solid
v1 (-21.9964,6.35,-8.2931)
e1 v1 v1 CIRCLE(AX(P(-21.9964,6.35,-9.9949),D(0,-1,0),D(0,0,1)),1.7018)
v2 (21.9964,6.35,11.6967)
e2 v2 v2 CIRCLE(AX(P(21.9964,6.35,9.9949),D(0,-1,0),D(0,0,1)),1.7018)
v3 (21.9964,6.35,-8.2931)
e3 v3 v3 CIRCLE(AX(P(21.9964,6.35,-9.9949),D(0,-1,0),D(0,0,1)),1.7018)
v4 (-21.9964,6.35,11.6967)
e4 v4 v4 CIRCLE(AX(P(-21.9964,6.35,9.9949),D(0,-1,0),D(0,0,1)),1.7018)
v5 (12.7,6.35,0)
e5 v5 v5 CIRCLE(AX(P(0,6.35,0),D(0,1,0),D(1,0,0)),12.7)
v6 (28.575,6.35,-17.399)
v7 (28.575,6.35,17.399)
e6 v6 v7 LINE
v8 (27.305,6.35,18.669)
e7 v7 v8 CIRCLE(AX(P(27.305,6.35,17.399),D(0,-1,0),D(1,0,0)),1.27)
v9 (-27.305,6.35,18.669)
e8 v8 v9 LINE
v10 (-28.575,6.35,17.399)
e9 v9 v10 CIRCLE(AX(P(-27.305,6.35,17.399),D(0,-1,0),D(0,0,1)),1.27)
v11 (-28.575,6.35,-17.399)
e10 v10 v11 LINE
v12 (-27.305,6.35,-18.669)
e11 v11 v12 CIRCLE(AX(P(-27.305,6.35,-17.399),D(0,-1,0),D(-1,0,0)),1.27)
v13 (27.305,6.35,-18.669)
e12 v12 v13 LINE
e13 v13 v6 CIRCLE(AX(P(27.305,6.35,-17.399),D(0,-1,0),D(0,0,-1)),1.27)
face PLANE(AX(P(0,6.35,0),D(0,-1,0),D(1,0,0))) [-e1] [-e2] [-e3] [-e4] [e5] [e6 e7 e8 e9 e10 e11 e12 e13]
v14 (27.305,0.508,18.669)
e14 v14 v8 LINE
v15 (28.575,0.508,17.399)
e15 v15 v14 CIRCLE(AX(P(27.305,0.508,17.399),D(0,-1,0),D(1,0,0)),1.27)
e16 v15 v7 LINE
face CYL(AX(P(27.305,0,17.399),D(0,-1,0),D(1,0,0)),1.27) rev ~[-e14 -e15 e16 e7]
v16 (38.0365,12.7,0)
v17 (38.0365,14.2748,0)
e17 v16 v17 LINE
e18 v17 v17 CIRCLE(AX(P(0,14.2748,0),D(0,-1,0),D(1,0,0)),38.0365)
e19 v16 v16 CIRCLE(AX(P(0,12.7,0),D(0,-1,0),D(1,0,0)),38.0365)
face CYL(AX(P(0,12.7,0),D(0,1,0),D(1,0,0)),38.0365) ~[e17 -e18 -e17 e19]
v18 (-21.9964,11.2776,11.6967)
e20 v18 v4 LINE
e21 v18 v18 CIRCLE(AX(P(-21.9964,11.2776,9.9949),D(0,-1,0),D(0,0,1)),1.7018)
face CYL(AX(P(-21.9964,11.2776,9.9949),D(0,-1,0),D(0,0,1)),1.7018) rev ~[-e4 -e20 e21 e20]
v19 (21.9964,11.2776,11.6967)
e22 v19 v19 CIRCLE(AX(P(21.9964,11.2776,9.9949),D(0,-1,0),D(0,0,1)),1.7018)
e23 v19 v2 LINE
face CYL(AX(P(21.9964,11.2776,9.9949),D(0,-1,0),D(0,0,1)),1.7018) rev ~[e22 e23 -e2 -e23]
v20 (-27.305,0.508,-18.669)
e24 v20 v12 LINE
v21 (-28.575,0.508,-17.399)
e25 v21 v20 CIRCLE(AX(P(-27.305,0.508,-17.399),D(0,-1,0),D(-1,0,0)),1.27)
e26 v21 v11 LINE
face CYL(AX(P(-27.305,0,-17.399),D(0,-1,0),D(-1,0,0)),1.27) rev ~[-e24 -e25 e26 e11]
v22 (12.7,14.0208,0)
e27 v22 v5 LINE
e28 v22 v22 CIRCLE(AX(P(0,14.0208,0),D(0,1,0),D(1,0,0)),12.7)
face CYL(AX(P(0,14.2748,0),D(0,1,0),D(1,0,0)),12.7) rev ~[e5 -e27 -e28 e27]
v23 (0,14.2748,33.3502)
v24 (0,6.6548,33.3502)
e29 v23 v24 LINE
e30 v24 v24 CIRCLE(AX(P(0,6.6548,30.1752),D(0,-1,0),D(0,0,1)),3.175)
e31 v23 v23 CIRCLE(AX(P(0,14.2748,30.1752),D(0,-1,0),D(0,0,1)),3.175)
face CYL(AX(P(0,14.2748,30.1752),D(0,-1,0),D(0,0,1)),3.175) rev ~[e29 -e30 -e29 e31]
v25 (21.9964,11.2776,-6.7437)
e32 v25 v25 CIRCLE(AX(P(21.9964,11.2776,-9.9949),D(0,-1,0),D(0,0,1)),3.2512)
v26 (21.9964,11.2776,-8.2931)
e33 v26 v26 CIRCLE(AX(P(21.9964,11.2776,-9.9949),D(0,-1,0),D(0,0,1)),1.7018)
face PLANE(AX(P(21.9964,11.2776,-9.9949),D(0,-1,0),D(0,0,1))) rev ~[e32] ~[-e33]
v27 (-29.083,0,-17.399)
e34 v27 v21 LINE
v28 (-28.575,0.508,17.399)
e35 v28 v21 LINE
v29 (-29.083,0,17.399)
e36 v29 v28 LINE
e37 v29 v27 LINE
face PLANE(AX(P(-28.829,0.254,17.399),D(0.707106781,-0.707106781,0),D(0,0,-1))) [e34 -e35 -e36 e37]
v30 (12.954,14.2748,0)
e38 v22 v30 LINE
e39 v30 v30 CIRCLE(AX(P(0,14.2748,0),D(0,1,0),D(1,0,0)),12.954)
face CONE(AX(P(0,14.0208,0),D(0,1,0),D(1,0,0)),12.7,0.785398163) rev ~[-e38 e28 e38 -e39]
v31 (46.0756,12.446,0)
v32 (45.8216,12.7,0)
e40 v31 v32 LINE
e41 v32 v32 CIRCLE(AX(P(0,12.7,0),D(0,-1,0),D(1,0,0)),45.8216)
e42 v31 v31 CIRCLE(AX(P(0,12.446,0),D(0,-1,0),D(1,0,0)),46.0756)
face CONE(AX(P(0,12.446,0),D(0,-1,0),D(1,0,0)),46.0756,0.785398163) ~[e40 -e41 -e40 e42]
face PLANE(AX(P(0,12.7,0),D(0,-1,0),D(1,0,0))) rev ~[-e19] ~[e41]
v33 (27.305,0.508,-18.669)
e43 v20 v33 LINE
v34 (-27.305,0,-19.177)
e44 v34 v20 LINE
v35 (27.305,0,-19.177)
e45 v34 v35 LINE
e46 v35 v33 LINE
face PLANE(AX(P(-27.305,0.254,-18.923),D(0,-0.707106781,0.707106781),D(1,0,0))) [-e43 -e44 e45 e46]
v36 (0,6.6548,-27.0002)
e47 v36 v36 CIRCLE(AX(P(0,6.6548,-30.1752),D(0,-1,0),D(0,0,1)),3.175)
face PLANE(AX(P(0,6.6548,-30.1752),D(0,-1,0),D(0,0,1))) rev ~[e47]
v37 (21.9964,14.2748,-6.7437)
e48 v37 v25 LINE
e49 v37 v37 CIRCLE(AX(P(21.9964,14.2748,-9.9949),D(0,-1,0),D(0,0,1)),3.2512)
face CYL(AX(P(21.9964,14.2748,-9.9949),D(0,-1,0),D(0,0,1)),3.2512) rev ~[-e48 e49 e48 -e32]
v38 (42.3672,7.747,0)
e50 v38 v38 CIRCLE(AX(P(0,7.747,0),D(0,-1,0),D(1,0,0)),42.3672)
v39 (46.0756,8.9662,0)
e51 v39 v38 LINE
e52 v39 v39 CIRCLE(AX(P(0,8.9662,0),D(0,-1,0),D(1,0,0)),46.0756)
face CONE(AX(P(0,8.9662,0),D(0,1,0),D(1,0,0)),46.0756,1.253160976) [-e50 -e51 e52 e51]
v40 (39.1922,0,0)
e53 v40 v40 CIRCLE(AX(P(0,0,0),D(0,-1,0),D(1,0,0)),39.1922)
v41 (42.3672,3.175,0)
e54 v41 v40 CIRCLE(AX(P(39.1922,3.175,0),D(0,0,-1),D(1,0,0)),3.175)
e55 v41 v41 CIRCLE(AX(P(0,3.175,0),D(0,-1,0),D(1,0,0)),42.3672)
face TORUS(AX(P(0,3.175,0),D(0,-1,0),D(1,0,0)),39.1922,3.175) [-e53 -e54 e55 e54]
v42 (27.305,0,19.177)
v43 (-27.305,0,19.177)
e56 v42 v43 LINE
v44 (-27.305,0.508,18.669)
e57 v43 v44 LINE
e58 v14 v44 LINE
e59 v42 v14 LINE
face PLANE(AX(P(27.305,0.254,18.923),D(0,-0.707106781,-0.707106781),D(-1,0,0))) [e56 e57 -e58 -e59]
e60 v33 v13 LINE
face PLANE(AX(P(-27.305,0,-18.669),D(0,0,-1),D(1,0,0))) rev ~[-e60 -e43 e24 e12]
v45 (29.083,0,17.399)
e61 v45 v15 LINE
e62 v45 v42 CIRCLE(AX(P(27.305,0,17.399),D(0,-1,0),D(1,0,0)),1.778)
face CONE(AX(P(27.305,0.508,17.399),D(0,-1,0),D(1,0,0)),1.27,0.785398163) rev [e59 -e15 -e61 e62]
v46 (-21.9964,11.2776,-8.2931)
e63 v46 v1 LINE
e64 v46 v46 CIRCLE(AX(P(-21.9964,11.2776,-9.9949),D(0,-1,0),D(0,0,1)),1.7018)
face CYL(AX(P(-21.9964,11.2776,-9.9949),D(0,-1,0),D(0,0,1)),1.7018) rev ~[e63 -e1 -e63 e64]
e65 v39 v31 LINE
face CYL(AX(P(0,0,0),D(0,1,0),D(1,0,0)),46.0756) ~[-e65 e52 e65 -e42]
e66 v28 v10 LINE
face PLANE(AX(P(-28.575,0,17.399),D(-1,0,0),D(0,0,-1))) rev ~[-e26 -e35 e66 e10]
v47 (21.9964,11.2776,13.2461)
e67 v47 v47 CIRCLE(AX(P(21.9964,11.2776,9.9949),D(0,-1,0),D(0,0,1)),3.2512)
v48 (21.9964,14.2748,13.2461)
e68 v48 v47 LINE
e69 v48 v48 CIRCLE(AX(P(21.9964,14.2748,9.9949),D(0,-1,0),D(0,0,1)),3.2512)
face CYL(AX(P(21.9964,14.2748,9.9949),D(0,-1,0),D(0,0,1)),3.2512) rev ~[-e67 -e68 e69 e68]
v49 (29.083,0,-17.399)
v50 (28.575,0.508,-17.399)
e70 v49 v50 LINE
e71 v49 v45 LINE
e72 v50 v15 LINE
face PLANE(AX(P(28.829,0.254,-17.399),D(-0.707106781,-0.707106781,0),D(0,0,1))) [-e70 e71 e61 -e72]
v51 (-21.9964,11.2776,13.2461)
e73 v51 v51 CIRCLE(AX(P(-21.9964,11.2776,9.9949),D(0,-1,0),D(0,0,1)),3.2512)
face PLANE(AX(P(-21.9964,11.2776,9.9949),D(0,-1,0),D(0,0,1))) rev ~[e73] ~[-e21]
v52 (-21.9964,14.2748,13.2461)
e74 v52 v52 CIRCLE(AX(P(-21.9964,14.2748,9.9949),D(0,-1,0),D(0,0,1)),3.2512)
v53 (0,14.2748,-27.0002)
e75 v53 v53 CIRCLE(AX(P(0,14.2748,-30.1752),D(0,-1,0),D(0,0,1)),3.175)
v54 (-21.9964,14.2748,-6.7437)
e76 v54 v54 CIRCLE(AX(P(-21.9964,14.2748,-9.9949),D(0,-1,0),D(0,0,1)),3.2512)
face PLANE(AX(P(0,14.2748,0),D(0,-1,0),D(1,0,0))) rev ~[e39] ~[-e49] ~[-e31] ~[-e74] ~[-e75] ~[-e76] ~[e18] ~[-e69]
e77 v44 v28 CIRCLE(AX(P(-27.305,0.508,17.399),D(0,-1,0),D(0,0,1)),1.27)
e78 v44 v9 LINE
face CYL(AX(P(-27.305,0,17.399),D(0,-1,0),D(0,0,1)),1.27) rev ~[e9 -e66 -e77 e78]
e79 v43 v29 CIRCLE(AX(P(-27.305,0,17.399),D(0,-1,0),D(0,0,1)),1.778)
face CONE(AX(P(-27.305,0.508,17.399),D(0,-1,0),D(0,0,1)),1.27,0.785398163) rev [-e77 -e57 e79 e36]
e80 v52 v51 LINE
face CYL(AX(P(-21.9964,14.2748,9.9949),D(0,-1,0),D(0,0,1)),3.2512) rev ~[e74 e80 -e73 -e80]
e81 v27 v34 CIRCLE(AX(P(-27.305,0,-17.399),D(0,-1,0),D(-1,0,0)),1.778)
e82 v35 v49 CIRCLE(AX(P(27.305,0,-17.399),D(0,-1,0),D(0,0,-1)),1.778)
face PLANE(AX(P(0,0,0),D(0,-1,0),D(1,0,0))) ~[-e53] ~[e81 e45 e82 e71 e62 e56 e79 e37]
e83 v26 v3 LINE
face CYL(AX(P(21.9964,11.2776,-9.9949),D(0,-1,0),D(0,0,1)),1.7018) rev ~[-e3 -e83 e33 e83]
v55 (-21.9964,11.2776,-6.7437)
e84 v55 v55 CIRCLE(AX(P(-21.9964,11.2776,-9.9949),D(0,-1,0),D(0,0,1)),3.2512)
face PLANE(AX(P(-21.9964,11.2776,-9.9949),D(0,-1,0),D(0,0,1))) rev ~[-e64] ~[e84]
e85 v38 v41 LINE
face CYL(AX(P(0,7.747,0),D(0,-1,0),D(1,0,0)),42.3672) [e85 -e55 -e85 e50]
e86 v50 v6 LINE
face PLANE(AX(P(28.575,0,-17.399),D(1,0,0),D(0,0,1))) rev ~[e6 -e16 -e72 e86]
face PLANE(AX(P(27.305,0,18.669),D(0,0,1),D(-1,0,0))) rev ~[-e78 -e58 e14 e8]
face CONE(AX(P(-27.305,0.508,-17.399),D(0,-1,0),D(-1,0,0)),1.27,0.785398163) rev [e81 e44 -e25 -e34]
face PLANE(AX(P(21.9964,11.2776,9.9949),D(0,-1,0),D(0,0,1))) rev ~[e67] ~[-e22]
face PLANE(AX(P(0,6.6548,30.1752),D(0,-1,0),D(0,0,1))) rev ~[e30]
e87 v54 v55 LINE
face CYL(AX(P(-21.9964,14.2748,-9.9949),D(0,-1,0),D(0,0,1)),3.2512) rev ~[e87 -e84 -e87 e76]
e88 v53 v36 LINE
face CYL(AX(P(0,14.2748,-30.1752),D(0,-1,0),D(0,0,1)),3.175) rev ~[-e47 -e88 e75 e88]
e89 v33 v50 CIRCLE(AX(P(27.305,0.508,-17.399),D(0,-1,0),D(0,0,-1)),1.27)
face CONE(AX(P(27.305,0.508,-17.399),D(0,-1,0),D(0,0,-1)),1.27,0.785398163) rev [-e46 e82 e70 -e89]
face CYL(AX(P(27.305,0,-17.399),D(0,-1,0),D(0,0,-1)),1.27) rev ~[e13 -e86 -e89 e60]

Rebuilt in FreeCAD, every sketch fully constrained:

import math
import FreeCAD as App
import Part
import Sketcher

V = App.Vector
Q = App.Units.Quantity


def edges_at(feature, points):
    """Names of the edges that pass closest to the given points."""
    edges = feature.Shape.Edges
    near = lambda p: min(range(len(edges)), key=lambda i: edges[i].distToShape(Part.Vertex(*p))[0])
    return sorted({f"Edge{near(p) + 1}" for p in points})

doc = App.newDocument("Part")
body = doc.addObject("PartDesign::Body", "Body")

# Sketch on XY plane
sketch1 = body.newObject("Sketcher::SketchObject", "Sketch")
sketch1.AttachmentSupport = (doc.getObject("XY_Plane"), [""])
sketch1.MapMode = "FlatFace"
sketch1.addGeometry(Part.LineSegment(V(46.1, 12.7, 0), V(38, 12.7, 0)), False)
sketch1.addGeometry(Part.LineSegment(V(38, 12.7, 0), V(38, 14.3, 0)), False)
sketch1.addGeometry(Part.LineSegment(V(38, 14.3, 0), V(0, 14.3, 0)), False)
sketch1.addGeometry(Part.LineSegment(V(0, 14.3, 0), V(0, 0, 0)), False)
sketch1.addGeometry(Part.LineSegment(V(0, 0, 0), V(42.4, 0, 0)), False)
sketch1.addGeometry(Part.LineSegment(V(42.4, 0, 0), V(42.4, 7.7, 0)), False)
sketch1.addGeometry(Part.LineSegment(V(42.4, 7.7, 0), V(46.1, 9, 0)), False)
sketch1.addGeometry(Part.LineSegment(V(46.1, 9, 0), V(46.1, 12.7, 0)), False)
sketch1.addConstraint(Sketcher.Constraint("Coincident", 0, 2, 1, 1))
sketch1.addConstraint(Sketcher.Constraint("Coincident", 1, 2, 2, 1))
sketch1.addConstraint(Sketcher.Constraint("Coincident", 2, 2, 3, 1))
sketch1.addConstraint(Sketcher.Constraint("Coincident", 3, 2, 4, 1))
sketch1.addConstraint(Sketcher.Constraint("Coincident", 4, 2, 5, 1))
sketch1.addConstraint(Sketcher.Constraint("Coincident", 5, 2, 6, 1))
sketch1.addConstraint(Sketcher.Constraint("Coincident", 6, 2, 7, 1))
sketch1.addConstraint(Sketcher.Constraint("Coincident", 7, 2, 0, 1))
sketch1.addConstraint(Sketcher.Constraint("Horizontal", 0))
sketch1.addConstraint(Sketcher.Constraint("Vertical", 1))
sketch1.addConstraint(Sketcher.Constraint("Horizontal", 2))
sketch1.addConstraint(Sketcher.Constraint("Vertical", 3))
sketch1.addConstraint(Sketcher.Constraint("Horizontal", 4))
sketch1.addConstraint(Sketcher.Constraint("Vertical", 5))
sketch1.addConstraint(Sketcher.Constraint("Vertical", 7))
sketch1.addConstraint(Sketcher.Constraint("Coincident", 3, 2, -1, 1))
sketch1.addConstraint(Sketcher.Constraint("DistanceY", -1, 1, 0, 2, Q("0.5 in")))
sketch1.addConstraint(Sketcher.Constraint("DistanceX", 4, 1, 4, 2, Q("1.668 in")))
sketch1.addConstraint(Sketcher.Constraint("DistanceY", 1, 1, 1, 2, Q("0.062 in")))
sketch1.addConstraint(Sketcher.Constraint("DistanceY", 7, 1, 7, 2, Q("0.147 in")))
sketch1.addConstraint(Sketcher.Constraint("DistanceX", 2, 2, 2, 1, Q("1.4975 in")))
sketch1.addConstraint(Sketcher.Constraint("DistanceX", -1, 1, 6, 2, Q("1.814 in")))
sketch1.addConstraint(Sketcher.Constraint("DistanceY", 5, 2, 0, 2, Q("0.195 in")))
revolution = body.newObject("PartDesign::Revolution", "Revolution")
revolution.Profile = sketch1
revolution.ReferenceAxis = (sketch1, ["V_Axis"])
revolution.Angle = 360

# Sketch on XZ plane
sketch2 = body.newObject("Sketcher::SketchObject", "Sketch001")
sketch2.AttachmentSupport = (doc.getObject("XZ_Plane"), [""])
sketch2.MapMode = "FlatFace"
sketch2.AttachmentOffset = App.Placement(V(0, 0, -0.562 * 25.4), App.Rotation())
sketch2.addGeometry(Part.Circle(V(0, -30.2, 0), V(0, 0, 1), 3.2), False)
sketch2.addGeometry(Part.Circle(V(0, 30.2, 0), V(0, 0, 1), 3.2), False)
sketch2.addConstraint(Sketcher.Constraint("Equal", 0, 1))
sketch2.addConstraint(Sketcher.Constraint("Symmetric", 0, 3, 1, 3, -1, 1))
sketch2.addConstraint(Sketcher.Constraint("PointOnObject", 0, 3, -2))
sketch2.addConstraint(Sketcher.Constraint("Diameter", 0, Q("0.25 in")))
sketch2.addConstraint(Sketcher.Constraint("DistanceY", 0, 3, -1, 1, Q("1.188 in")))
doc.recompute()
hole = body.newObject("PartDesign::Hole", "Hole")
hole.Profile = sketch2
hole.ThreadType = "None"
hole.Diameter = Q("0.25 in")
hole.DepthType = "Dimension"
hole.Depth = Q("0.3 in")
hole.DrillPoint = "Flat"
hole.Reversed = True
doc.recompute()

fillet = body.newObject("PartDesign::Fillet", "Fillet")
fillet.Base = (hole, edges_at(hole, [(-42.367, 0, 0)]))
fillet.Radius = Q("0.125 in")

# Sketch on XZ plane
sketch3 = body.newObject("Sketcher::SketchObject", "Sketch002")
sketch3.AttachmentSupport = (doc.getObject("XZ_Plane"), [""])
sketch3.MapMode = "FlatFace"
sketch3.AttachmentOffset = App.Placement(V(0, 0, -0.562 * 25.4), App.Rotation())
sketch3.addGeometry(Part.Circle(V(22, 10, 0), V(0, 0, 1), 1.7), False)
sketch3.addGeometry(Part.Circle(V(22, -10, 0), V(0, 0, 1), 1.7), False)
sketch3.addGeometry(Part.Circle(V(-22, 10, 0), V(0, 0, 1), 1.7), False)
sketch3.addGeometry(Part.Circle(V(-22, -10, 0), V(0, 0, 1), 1.7), False)
sketch3.addConstraint(Sketcher.Constraint("Equal", 0, 1))
sketch3.addConstraint(Sketcher.Constraint("Equal", 1, 2))
sketch3.addConstraint(Sketcher.Constraint("Equal", 2, 3))
sketch3.addConstraint(Sketcher.Constraint("Symmetric", 1, 3, 2, 3, -1, 1))
sketch3.addConstraint(Sketcher.Constraint("Symmetric", 0, 3, 3, 3, -1, 1))
sketch3.addConstraint(Sketcher.Constraint("Symmetric", 0, 3, 2, 3, -2))
sketch3.addConstraint(Sketcher.Constraint("Diameter", 0, Q("0.134 in")))
sketch3.addConstraint(Sketcher.Constraint("DistanceX", -1, 1, 0, 3, Q("0.866 in")))
sketch3.addConstraint(Sketcher.Constraint("DistanceY", 1, 3, 0, 3, Q("0.787 in")))
doc.recompute()
hole2 = body.newObject("PartDesign::Hole", "Hole001")
hole2.Profile = sketch3
hole2.ThreadType = "None"
hole2.Diameter = Q("0.134 in")
hole2.DepthType = "ThroughAll"
hole2.HoleCutType = "Counterbore"
hole2.HoleCutDiameter = Q("0.256 in")
hole2.HoleCutDepth = Q("0.118 in")
hole2.Reversed = True

# Sketch on XZ plane
sketch4 = body.newObject("Sketcher::SketchObject", "Sketch003")
sketch4.AttachmentSupport = (doc.getObject("XZ_Plane"), [""])
sketch4.MapMode = "FlatFace"
sketch4.addGeometry(Part.ArcOfCircle(Part.Circle(V(27.3, 17.4, 0), V(0, 0, 1), 1.3), math.radians(0), math.radians(90)), False)
sketch4.addGeometry(Part.LineSegment(V(27.3, 18.7, 0), V(-27.3, 18.7, 0)), False)
sketch4.addGeometry(Part.ArcOfCircle(Part.Circle(V(-27.3, 17.4, 0), V(0, 0, 1), 1.3), math.radians(90), math.radians(180)), False)
sketch4.addGeometry(Part.LineSegment(V(-28.6, 17.4, 0), V(-28.6, -17.4, 0)), False)
sketch4.addGeometry(Part.ArcOfCircle(Part.Circle(V(-27.3, -17.4, 0), V(0, 0, 1), 1.3), math.radians(180), math.radians(270)), False)
sketch4.addGeometry(Part.LineSegment(V(-27.3, -18.7, 0), V(27.3, -18.7, 0)), False)
sketch4.addGeometry(Part.ArcOfCircle(Part.Circle(V(27.3, -17.4, 0), V(0, 0, 1), 1.3), math.radians(-90), math.radians(0)), False)
sketch4.addGeometry(Part.LineSegment(V(28.6, -17.4, 0), V(28.6, 17.4, 0)), False)
sketch4.addConstraint(Sketcher.Constraint("Tangent", 0, 2, 1, 1))
sketch4.addConstraint(Sketcher.Constraint("Tangent", 1, 2, 2, 1))
sketch4.addConstraint(Sketcher.Constraint("Tangent", 2, 2, 3, 1))
sketch4.addConstraint(Sketcher.Constraint("Tangent", 3, 2, 4, 1))
sketch4.addConstraint(Sketcher.Constraint("Tangent", 4, 2, 5, 1))
sketch4.addConstraint(Sketcher.Constraint("Tangent", 5, 2, 6, 1))
sketch4.addConstraint(Sketcher.Constraint("Tangent", 6, 2, 7, 1))
sketch4.addConstraint(Sketcher.Constraint("Tangent", 7, 2, 0, 1))
sketch4.addConstraint(Sketcher.Constraint("Horizontal", 1))
sketch4.addConstraint(Sketcher.Constraint("Vertical", 3))
sketch4.addConstraint(Sketcher.Constraint("Horizontal", 5))
sketch4.addConstraint(Sketcher.Constraint("Vertical", 7))
sketch4.addConstraint(Sketcher.Constraint("Equal", 0, 2))
sketch4.addConstraint(Sketcher.Constraint("Equal", 2, 4))
sketch4.addConstraint(Sketcher.Constraint("Equal", 4, 6))
sketch4.addConstraint(Sketcher.Constraint("Symmetric", 0, 3, 4, 3, -1, 1))
sketch4.addConstraint(Sketcher.Constraint("Radius", 0, Q("0.05 in")))
sketch4.addConstraint(Sketcher.Constraint("DistanceY", 4, 2, 1, 2, Q("1.47 in")))
sketch4.addConstraint(Sketcher.Constraint("DistanceX", 1, 2, 1, 1, Q("2.15 in")))
pocket1 = body.newObject("PartDesign::Pocket", "Pocket")
pocket1.Profile = sketch4
pocket1.Length = Q("0.25 in")
doc.recompute()

chamfer = body.newObject("PartDesign::Chamfer", "Chamfer")
chamfer.Base = (pocket1, edges_at(pocket1, [
    (0, 0, 18.669),
    (28.203, 0, 18.297),
    (28.575, 0, 0),
    (28.203, 0, -18.297),
    (0, 0, -18.669),
    (-28.203, 0, -18.297),
    (-28.575, 0, 0),
    (-28.203, 0, 18.297),
]))
chamfer.Size = Q("0.02 in")

# Sketch on XZ plane
sketch5 = body.newObject("Sketcher::SketchObject", "Sketch004")
sketch5.AttachmentSupport = (doc.getObject("XZ_Plane"), [""])
sketch5.MapMode = "FlatFace"
sketch5.AttachmentOffset = App.Placement(V(0, 0, -0.562 * 25.4), App.Rotation())
sketch5.addGeometry(Part.Circle(V(0, 0, 0), V(0, 0, 1), 13), False)
sketch5.addConstraint(Sketcher.Constraint("Coincident", 0, 3, -1, 1))
sketch5.addConstraint(Sketcher.Constraint("Diameter", 0, Q("1 in")))
pocket2 = body.newObject("PartDesign::Pocket", "Pocket001")
pocket2.Profile = sketch5
pocket2.Type = "ThroughAll"
pocket2.Reversed = True
doc.recompute()

chamfer2 = body.newObject("PartDesign::Chamfer", "Chamfer001")
chamfer2.Base = (pocket2, edges_at(pocket2, [(-46.076, 12.7, 0), (-12.7, 14.275, 0)]))
chamfer2.Size = Q("0.01 in")

doc.recompute()
